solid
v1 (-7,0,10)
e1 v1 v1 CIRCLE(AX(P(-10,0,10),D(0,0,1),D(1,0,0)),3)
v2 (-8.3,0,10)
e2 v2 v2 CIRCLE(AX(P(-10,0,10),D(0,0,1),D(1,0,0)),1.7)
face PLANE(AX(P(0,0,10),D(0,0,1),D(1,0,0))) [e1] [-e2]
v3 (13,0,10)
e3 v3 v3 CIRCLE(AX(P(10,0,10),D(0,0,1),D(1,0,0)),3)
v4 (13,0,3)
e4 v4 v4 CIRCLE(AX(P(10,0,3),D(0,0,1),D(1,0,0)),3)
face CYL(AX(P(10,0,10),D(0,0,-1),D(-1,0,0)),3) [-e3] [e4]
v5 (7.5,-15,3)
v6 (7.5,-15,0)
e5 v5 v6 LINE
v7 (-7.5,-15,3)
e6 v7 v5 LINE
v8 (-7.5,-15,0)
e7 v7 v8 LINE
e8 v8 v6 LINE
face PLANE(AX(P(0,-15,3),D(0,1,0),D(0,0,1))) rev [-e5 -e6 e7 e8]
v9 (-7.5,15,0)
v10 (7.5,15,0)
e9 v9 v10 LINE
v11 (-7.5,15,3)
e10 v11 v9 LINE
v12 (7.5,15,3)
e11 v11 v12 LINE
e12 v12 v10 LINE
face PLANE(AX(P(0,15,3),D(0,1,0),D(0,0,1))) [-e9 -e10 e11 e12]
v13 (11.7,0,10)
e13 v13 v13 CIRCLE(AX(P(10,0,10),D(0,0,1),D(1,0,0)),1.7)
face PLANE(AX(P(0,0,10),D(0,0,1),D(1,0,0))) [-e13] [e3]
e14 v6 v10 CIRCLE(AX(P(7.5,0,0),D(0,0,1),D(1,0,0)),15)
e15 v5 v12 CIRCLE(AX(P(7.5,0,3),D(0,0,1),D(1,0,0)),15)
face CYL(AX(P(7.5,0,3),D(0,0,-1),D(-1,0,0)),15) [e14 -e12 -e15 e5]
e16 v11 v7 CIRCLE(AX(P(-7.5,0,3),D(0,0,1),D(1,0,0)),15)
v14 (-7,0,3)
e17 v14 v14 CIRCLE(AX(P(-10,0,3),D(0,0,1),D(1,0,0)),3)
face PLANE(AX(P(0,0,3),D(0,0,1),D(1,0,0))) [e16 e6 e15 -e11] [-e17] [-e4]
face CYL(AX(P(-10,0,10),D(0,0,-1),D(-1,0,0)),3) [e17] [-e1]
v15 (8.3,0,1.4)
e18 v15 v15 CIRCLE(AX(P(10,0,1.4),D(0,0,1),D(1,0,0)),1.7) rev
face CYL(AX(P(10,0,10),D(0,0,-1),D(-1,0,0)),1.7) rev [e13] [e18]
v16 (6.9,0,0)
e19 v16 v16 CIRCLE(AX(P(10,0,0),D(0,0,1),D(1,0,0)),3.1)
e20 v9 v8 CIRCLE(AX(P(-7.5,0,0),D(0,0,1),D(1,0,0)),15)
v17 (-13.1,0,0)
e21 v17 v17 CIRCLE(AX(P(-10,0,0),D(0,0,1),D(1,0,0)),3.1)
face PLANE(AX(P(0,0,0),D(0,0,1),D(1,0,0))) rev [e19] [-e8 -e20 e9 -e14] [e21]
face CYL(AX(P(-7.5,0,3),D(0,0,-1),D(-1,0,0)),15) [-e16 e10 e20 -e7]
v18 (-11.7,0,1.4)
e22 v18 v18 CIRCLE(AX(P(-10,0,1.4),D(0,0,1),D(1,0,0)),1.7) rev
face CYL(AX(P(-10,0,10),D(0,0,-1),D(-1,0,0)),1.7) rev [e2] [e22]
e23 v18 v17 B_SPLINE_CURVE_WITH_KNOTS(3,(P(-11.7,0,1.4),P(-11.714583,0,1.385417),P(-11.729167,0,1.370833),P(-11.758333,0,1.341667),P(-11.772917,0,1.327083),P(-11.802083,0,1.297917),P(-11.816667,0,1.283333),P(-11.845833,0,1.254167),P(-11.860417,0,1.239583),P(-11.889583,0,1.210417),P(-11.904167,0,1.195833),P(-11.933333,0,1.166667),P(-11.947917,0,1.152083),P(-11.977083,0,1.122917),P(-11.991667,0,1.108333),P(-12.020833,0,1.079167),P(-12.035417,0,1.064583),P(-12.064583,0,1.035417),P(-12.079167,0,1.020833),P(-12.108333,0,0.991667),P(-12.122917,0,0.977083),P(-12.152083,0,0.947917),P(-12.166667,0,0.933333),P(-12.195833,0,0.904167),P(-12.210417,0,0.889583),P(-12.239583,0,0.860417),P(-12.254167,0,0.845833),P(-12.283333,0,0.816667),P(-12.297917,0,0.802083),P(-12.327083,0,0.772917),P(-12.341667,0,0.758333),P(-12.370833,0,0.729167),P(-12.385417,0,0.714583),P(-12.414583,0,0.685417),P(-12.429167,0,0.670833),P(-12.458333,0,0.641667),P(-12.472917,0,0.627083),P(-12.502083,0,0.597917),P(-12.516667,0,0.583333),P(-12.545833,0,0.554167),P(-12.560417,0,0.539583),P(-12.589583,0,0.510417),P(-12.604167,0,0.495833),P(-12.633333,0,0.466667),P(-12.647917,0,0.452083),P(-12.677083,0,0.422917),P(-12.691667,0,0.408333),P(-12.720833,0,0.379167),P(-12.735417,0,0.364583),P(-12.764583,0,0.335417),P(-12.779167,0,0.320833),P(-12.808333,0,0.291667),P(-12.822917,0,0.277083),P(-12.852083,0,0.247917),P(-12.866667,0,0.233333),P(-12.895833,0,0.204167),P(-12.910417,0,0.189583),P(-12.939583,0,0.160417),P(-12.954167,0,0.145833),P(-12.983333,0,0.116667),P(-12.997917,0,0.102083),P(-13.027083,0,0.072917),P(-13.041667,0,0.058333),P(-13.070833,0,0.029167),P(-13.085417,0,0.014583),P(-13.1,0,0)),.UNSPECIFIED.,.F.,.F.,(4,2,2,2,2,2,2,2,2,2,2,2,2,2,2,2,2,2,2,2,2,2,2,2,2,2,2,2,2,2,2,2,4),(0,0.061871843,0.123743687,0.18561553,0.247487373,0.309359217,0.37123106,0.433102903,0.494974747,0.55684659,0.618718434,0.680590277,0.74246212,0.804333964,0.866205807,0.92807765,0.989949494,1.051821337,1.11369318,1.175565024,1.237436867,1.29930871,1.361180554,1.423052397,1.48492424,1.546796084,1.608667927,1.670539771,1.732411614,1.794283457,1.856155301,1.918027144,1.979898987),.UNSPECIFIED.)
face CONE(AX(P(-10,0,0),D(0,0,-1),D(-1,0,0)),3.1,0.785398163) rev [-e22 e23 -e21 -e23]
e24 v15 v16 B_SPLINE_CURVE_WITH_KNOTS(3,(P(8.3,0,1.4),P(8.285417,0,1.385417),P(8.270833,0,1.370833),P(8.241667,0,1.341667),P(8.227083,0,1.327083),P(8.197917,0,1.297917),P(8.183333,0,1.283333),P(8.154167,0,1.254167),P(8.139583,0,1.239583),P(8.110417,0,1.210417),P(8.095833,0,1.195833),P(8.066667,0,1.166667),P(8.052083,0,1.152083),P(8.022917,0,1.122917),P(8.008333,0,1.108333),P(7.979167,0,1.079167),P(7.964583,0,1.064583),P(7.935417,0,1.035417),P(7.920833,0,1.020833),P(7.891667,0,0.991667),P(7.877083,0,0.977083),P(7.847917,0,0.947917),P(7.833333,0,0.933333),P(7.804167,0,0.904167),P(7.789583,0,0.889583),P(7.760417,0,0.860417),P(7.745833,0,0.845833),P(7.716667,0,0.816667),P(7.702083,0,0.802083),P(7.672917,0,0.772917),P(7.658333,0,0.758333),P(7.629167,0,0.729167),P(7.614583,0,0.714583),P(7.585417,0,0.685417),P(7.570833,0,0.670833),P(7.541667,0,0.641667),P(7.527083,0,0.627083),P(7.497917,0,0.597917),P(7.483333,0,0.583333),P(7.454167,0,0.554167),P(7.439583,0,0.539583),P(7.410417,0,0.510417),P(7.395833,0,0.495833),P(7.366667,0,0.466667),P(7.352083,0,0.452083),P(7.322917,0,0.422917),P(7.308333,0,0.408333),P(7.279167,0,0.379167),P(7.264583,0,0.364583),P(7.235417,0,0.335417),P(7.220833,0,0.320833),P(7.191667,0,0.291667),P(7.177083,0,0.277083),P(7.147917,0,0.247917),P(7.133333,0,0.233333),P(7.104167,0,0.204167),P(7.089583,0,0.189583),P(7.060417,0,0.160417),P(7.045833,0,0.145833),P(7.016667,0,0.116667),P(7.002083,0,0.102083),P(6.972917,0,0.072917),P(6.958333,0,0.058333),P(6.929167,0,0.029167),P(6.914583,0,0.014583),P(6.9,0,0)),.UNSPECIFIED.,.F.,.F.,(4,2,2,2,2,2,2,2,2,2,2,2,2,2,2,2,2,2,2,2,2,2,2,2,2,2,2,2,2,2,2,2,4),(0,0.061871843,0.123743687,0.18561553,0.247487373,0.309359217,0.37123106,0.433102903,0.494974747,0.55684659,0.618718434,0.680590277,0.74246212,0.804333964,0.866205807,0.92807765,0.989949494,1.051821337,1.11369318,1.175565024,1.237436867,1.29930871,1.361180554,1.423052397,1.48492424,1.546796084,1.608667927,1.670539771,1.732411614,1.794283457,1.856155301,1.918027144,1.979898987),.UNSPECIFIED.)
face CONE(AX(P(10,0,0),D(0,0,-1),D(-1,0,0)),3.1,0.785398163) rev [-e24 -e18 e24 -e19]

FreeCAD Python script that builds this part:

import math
import FreeCAD as App
import Part
import Sketcher
from FreeCAD import Vector


def edges_at(feature, points):
    """Names of the edges that pass closest to the given points."""
    edges = feature.Shape.Edges
    near = lambda p: min(range(len(edges)), key=lambda i: edges[i].distToShape(Part.Vertex(*p))[0])
    return sorted({f"Edge{near(p) + 1}" for p in points})

doc = App.newDocument("Part")
body = doc.addObject("PartDesign::Body", "Body")

sketch1 = doc.addObject("Sketcher::SketchObject", "Sketch")
body.addObject(sketch1)
sketch1.AttachmentSupport = (doc.XY_Plane, [""])
sketch1.MapMode = "FlatFace"
sketch1.addGeometry(Part.LineSegment(Vector(7.5, 15, 0), Vector(-7.5, 15, 0)), False)
sketch1.addGeometry(Part.ArcOfCircle(Part.Circle(Vector(-7.5, 0, 0), Vector(0, 0, 1), 15), math.radians(90), math.radians(270)), False)
sketch1.addGeometry(Part.LineSegment(Vector(-7.5, -15, 0), Vector(7.5, -15, 0)), False)
sketch1.addGeometry(Part.ArcOfCircle(Part.Circle(Vector(7.5, 0, 0), Vector(0, 0, 1), 15), math.radians(-90), math.radians(90)), False)
sketch1.addGeometry(Part.Circle(Vector(10, 0, 0), Vector(0, 0, 1), 3), False)
sketch1.addGeometry(Part.Circle(Vector(-10, 0, 0), Vector(0, 0, 1), 3), False)
sketch1.addConstraint(Sketcher.Constraint("Tangent", 0, 2, 1, 1))
sketch1.addConstraint(Sketcher.Constraint("Tangent", 1, 2, 2, 1))
sketch1.addConstraint(Sketcher.Constraint("Tangent", 2, 2, 3, 1))
sketch1.addConstraint(Sketcher.Constraint("Tangent", 3, 2, 0, 1))
sketch1.addConstraint(Sketcher.Constraint("Horizontal", 0))
sketch1.addConstraint(Sketcher.Constraint("Horizontal", 2))
sketch1.addConstraint(Sketcher.Constraint("Equal", 4, 5))
sketch1.addConstraint(Sketcher.Constraint("Symmetric", 1, 3, 3, 3, -1, 1))
sketch1.addConstraint(Sketcher.Constraint("Symmetric", 4, 3, 5, 3, -1, 1))
sketch1.addConstraint(Sketcher.Constraint("PointOnObject", 4, 3, -1))
sketch1.addConstraint(Sketcher.Constraint("Diameter", 4, 6.0))
sketch1.addConstraint(Sketcher.Constraint("Radius", 1, 15.0))
sketch1.addConstraint(Sketcher.Constraint("DistanceX", 0, 2, 0, 1, 15.0))
sketch1.addConstraint(Sketcher.Constraint("DistanceX", -1, 1, 4, 3, 10.0))
pad1 = doc.addObject("PartDesign::Pad", "Pad")
body.addObject(pad1)
pad1.Profile = sketch1
pad1.Length = 3

sketch2 = doc.addObject("Sketcher::SketchObject", "Sketch001")
body.addObject(sketch2)
sketch2.AttachmentSupport = (doc.XY_Plane, [""])
sketch2.MapMode = "FlatFace"
sketch2.addGeometry(Part.Circle(Vector(-10, 0, 0), Vector(0, 0, 1), 3), False)
sketch2.addGeometry(Part.Circle(Vector(-10, 0, 0), Vector(0, 0, 1), 1.7), False)
sketch2.addGeometry(Part.Circle(Vector(10, 0, 0), Vector(0, 0, 1), 3), False)
sketch2.addGeometry(Part.Circle(Vector(10, 0, 0), Vector(0, 0, 1), 1.7), False)
sketch2.addConstraint(Sketcher.Constraint("Coincident", 1, 3, 0, 3))
sketch2.addConstraint(Sketcher.Constraint("Coincident", 3, 3, 2, 3))
sketch2.addConstraint(Sketcher.Constraint("Equal", 0, 2))
sketch2.addConstraint(Sketcher.Constraint("Equal", 1, 3))
sketch2.addConstraint(Sketcher.Constraint("Symmetric", 0, 3, 2, 3, -1, 1))
sketch2.addConstraint(Sketcher.Constraint("PointOnObject", 0, 3, -1))
sketch2.addConstraint(Sketcher.Constraint("Diameter", 0, 6.0))
sketch2.addConstraint(Sketcher.Constraint("Diameter", 1, 3.4))
sketch2.addConstraint(Sketcher.Constraint("DistanceX", 0, 3, -1, 1, 10.0))
pad2 = doc.addObject("PartDesign::Pad", "Pad001")
body.addObject(pad2)
pad2.Profile = sketch2
pad2.Length = 10
doc.recompute()

chamfer = doc.addObject("PartDesign::Chamfer", "Chamfer")
body.addObject(chamfer)
chamfer.Base = (pad2, edges_at(pad2, [(-11.7, 0, 0), (8.3, 0, 0)]))
chamfer.Size = 1.4

doc.recompute()
